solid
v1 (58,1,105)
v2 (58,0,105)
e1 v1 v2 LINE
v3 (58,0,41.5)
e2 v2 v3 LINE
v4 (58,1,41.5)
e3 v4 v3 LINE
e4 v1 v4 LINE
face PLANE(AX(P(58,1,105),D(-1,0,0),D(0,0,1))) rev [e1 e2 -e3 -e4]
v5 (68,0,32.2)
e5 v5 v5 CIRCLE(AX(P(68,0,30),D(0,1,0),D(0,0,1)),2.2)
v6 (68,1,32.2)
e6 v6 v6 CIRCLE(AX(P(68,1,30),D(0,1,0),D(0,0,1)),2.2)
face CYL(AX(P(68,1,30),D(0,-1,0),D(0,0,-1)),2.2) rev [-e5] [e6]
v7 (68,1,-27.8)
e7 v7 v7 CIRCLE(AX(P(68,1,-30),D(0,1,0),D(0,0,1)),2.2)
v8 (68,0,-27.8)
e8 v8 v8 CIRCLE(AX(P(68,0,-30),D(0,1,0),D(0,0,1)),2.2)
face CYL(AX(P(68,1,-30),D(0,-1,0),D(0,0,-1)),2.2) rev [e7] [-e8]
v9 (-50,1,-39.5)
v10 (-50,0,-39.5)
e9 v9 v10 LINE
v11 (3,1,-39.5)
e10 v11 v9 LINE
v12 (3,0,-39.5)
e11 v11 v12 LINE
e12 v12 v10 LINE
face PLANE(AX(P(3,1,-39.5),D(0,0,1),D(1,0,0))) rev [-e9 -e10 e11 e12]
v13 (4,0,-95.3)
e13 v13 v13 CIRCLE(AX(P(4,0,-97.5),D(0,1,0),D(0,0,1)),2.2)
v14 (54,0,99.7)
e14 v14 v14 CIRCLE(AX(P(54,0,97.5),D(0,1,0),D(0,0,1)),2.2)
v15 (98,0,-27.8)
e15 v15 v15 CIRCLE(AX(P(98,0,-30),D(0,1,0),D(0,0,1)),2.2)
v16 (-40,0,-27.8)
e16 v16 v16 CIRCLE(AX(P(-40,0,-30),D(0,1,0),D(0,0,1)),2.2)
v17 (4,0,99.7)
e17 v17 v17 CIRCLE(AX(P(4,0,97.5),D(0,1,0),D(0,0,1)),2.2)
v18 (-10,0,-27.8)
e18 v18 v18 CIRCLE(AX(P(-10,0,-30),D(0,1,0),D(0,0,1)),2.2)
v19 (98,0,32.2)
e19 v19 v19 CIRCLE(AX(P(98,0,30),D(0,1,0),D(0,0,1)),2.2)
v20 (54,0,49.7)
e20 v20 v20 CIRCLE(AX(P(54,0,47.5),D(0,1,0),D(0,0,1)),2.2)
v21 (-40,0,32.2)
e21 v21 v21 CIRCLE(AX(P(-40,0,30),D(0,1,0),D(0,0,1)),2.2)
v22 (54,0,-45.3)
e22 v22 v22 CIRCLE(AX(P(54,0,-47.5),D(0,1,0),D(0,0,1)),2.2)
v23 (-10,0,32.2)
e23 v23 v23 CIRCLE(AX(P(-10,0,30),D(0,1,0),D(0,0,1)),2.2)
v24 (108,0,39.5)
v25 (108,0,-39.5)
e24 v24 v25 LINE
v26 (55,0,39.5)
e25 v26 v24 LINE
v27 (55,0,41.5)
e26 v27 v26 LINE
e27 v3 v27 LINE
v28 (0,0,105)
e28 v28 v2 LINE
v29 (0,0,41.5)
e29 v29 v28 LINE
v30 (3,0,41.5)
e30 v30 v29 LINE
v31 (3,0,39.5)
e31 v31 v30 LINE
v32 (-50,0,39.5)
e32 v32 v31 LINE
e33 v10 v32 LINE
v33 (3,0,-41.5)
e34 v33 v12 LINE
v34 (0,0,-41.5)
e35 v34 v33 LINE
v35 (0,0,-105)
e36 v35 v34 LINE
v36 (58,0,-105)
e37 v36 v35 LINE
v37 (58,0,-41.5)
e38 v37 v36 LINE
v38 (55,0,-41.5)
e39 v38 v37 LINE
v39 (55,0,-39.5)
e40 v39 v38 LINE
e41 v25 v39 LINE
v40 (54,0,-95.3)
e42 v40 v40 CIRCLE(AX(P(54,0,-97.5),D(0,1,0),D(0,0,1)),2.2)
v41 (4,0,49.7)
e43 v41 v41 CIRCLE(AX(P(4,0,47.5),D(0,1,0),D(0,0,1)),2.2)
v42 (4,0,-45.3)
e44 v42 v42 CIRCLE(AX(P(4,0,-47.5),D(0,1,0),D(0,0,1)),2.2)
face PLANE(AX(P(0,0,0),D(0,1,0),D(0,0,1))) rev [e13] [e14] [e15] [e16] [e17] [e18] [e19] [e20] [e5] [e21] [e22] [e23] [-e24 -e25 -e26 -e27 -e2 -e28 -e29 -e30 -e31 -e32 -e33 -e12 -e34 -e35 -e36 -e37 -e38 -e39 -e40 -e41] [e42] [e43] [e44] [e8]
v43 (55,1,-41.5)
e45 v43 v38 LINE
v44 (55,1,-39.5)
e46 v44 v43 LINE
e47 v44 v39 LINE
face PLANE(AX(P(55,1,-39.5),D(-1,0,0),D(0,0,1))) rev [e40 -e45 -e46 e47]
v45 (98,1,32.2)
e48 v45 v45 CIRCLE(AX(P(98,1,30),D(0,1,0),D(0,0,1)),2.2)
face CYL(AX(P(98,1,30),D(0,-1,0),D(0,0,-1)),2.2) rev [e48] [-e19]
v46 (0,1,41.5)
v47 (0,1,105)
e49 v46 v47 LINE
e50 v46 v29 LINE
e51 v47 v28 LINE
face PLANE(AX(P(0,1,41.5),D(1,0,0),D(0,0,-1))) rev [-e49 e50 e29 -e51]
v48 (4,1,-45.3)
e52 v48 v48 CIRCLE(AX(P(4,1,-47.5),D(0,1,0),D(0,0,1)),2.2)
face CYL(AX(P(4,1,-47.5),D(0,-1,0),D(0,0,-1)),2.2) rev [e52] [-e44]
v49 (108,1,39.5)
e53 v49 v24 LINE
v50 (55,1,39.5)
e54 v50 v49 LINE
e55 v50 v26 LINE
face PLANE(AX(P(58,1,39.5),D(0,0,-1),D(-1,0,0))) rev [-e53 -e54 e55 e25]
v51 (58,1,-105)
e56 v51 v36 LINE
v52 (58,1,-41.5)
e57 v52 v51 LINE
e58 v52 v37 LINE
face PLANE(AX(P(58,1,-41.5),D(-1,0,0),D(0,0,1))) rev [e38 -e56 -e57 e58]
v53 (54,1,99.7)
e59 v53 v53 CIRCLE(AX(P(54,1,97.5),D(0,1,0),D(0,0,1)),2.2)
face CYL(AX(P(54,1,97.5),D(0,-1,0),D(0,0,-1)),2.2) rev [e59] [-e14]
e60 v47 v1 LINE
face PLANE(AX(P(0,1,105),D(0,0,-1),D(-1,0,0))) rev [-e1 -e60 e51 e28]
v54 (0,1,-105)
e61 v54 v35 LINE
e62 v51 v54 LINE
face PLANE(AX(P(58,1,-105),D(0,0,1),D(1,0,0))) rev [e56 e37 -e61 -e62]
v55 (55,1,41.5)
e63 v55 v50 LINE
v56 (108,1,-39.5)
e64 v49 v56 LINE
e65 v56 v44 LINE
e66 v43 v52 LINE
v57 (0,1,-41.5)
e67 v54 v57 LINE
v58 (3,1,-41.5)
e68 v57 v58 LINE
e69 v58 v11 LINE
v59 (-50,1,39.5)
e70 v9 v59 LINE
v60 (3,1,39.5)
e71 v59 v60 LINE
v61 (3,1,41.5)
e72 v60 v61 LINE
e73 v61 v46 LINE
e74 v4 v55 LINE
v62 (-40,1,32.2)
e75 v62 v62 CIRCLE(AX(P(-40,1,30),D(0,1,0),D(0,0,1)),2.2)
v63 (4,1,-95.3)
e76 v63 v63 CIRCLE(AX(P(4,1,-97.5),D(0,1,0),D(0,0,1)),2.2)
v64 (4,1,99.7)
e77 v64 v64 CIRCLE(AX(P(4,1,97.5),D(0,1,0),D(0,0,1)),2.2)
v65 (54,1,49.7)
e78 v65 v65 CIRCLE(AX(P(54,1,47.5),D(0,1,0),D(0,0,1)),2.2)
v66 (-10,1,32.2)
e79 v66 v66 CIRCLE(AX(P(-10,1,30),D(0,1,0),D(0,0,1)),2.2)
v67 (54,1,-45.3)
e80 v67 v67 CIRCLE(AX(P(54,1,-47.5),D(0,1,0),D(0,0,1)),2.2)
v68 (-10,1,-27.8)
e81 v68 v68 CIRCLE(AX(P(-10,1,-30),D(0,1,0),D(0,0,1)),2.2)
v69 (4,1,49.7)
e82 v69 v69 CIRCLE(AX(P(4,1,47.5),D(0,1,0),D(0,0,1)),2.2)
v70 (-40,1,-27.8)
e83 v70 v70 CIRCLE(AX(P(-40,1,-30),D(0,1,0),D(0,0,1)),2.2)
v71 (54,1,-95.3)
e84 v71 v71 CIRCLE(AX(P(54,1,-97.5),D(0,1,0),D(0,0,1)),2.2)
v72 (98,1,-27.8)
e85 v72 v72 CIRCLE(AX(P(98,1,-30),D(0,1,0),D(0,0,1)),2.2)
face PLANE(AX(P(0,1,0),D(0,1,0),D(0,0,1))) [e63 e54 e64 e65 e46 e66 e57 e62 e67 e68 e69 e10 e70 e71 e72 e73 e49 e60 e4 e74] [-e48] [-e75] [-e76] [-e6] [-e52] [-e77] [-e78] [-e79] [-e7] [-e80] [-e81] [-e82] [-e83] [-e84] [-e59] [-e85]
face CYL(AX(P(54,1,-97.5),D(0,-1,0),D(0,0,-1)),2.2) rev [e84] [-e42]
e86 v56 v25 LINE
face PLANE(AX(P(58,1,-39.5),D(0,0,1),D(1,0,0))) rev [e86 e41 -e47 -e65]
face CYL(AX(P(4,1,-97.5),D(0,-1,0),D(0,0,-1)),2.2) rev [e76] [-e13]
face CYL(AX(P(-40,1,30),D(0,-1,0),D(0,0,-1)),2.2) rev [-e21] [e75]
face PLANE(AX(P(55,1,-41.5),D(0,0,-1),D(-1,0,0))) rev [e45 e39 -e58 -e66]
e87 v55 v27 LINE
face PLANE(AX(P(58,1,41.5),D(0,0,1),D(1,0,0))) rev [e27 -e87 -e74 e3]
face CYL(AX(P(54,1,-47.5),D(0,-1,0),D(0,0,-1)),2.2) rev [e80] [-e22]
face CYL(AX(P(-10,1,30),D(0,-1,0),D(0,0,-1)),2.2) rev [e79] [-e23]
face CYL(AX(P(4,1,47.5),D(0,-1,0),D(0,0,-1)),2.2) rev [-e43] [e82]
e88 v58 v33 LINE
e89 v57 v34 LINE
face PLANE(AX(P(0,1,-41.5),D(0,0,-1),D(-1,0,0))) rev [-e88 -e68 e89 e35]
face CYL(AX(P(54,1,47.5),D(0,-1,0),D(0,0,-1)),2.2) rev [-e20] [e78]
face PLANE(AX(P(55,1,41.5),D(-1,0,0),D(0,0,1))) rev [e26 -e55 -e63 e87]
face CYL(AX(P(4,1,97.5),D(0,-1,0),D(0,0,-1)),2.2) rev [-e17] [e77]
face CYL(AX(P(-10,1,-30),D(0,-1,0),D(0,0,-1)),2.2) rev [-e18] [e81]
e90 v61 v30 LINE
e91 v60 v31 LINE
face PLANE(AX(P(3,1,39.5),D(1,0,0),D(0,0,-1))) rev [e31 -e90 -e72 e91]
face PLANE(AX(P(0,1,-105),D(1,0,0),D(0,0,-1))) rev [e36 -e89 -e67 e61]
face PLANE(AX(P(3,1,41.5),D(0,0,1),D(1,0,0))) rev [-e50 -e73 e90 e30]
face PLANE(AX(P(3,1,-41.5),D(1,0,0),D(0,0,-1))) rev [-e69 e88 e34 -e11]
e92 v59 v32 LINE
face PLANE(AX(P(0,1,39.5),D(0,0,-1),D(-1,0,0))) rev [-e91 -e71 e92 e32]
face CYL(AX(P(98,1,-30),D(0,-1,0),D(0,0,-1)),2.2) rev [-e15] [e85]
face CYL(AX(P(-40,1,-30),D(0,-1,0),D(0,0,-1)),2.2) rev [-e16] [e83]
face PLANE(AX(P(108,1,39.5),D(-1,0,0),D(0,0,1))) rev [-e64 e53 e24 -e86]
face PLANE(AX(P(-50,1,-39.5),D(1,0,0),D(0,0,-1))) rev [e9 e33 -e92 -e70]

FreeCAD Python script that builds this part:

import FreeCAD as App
import Part
import Sketcher
from FreeCAD import Vector

doc = App.newDocument("Part")
body = doc.addObject("PartDesign::Body", "Body")

sketch1 = body.newObject("Sketcher::SketchObject", "Sketch")
sketch1.AttachmentSupport = (doc.getObject("XZ_Plane"), [""])
sketch1.MapMode = "FlatFace"
sketch1.addGeometry([
    Part.LineSegment(Vector(3, 39.5, 0), Vector(3, 41.5, 0)),
    Part.LineSegment(Vector(3, 41.5, 0), Vector(0, 41.5, 0)),
    Part.LineSegment(Vector(0, 41.5, 0), Vector(0, 105, 0)),
    Part.LineSegment(Vector(0, 105, 0), Vector(58, 105, 0)),
    Part.LineSegment(Vector(58, 105, 0), Vector(58, 41.5, 0)),
    Part.LineSegment(Vector(58, 41.5, 0), Vector(55, 41.5, 0)),
    Part.LineSegment(Vector(55, 41.5, 0), Vector(55, 39.5, 0)),
    Part.LineSegment(Vector(55, 39.5, 0), Vector(108, 39.5, 0)),
    Part.LineSegment(Vector(108, 39.5, 0), Vector(108, -39.5, 0)),
    Part.LineSegment(Vector(108, -39.5, 0), Vector(55, -39.5, 0)),
    Part.LineSegment(Vector(55, -39.5, 0), Vector(55, -41.5, 0)),
    Part.LineSegment(Vector(55, -41.5, 0), Vector(58, -41.5, 0)),
    Part.LineSegment(Vector(58, -41.5, 0), Vector(58, -105, 0)),
    Part.LineSegment(Vector(58, -105, 0), Vector(0, -105, 0)),
    Part.LineSegment(Vector(0, -105, 0), Vector(0, -41.5, 0)),
    Part.LineSegment(Vector(0, -41.5, 0), Vector(3, -41.5, 0)),
    Part.LineSegment(Vector(3, -41.5, 0), Vector(3, -39.5, 0)),
    Part.LineSegment(Vector(3, -39.5, 0), Vector(-50, -39.5, 0)),
    Part.LineSegment(Vector(-50, -39.5, 0), Vector(-50, 39.5, 0)),
    Part.LineSegment(Vector(-50, 39.5, 0), Vector(3, 39.5, 0)),
    Part.Circle(Vector(4, 97.5, 0), Vector(0, 0, 1), 2.2),
    Part.Circle(Vector(-40, 30, 0), Vector(0, 0, 1), 2.2),
    Part.Circle(Vector(-10, 30, 0), Vector(0, 0, 1), 2.2),
    Part.Circle(Vector(4, 47.5, 0), Vector(0, 0, 1), 2.2),
    Part.Circle(Vector(54, 97.5, 0), Vector(0, 0, 1), 2.2),
    Part.Circle(Vector(54, 47.5, 0), Vector(0, 0, 1), 2.2),
    Part.Circle(Vector(68, 30, 0), Vector(0, 0, 1), 2.2),
    Part.Circle(Vector(98, 30, 0), Vector(0, 0, 1), 2.2),
    Part.Circle(Vector(-40, -30, 0), Vector(0, 0, 1), 2.2),
    Part.Circle(Vector(-10, -30, 0), Vector(0, 0, 1), 2.2),
    Part.Circle(Vector(4, -47.5, 0), Vector(0, 0, 1), 2.2),
    Part.Circle(Vector(4, -97.5, 0), Vector(0, 0, 1), 2.2),
    Part.Circle(Vector(54, -47.5, 0), Vector(0, 0, 1), 2.2),
    Part.Circle(Vector(68, -30, 0), Vector(0, 0, 1), 2.2),
    Part.Circle(Vector(98, -30, 0), Vector(0, 0, 1), 2.2),
    Part.Circle(Vector(54, -97.5, 0), Vector(0, 0, 1), 2.2),
], False)
sketch1.addConstraint([
    Sketcher.Constraint("Coincident", 0, 2, 1, 1),
    Sketcher.Constraint("Coincident", 1, 2, 2, 1),
    Sketcher.Constraint("Coincident", 2, 2, 3, 1),
    Sketcher.Constraint("Coincident", 3, 2, 4, 1),
    Sketcher.Constraint("Coincident", 4, 2, 5, 1),
    Sketcher.Constraint("Coincident", 5, 2, 6, 1),
    Sketcher.Constraint("Coincident", 6, 2, 7, 1),
    Sketcher.Constraint("Coincident", 7, 2, 8, 1),
    Sketcher.Constraint("Coincident", 8, 2, 9, 1),
    Sketcher.Constraint("Coincident", 9, 2, 10, 1),
    Sketcher.Constraint("Coincident", 10, 2, 11, 1),
    Sketcher.Constraint("Coincident", 11, 2, 12, 1),
    Sketcher.Constraint("Coincident", 12, 2, 13, 1),
    Sketcher.Constraint("Coincident", 13, 2, 14, 1),
    Sketcher.Constraint("Coincident", 14, 2, 15, 1),
    Sketcher.Constraint("Coincident", 15, 2, 16, 1),
    Sketcher.Constraint("Coincident", 16, 2, 17, 1),
    Sketcher.Constraint("Coincident", 17, 2, 18, 1),
    Sketcher.Constraint("Coincident", 18, 2, 19, 1),
    Sketcher.Constraint("Coincident", 19, 2, 0, 1),
    Sketcher.Constraint("Vertical", 0),
    Sketcher.Constraint("Horizontal", 1),
    Sketcher.Constraint("Vertical", 2),
    Sketcher.Constraint("Horizontal", 3),
    Sketcher.Constraint("Vertical", 4),
    Sketcher.Constraint("Horizontal", 5),
    Sketcher.Constraint("Vertical", 6),
    Sketcher.Constraint("Horizontal", 7),
    Sketcher.Constraint("Vertical", 8),
    Sketcher.Constraint("Horizontal", 9),
    Sketcher.Constraint("Vertical", 10),
    Sketcher.Constraint("Horizontal", 11),
    Sketcher.Constraint("Vertical", 12),
    Sketcher.Constraint("Horizontal", 13),
    Sketcher.Constraint("Vertical", 14),
    Sketcher.Constraint("Horizontal", 15),
    Sketcher.Constraint("Vertical", 16),
    Sketcher.Constraint("Horizontal", 17),
    Sketcher.Constraint("Vertical", 18),
    Sketcher.Constraint("Horizontal", 19),
    Sketcher.Constraint("Equal", 20, 21),
    Sketcher.Constraint("Equal", 21, 22),
    Sketcher.Constraint("Equal", 22, 23),
    Sketcher.Constraint("Equal", 23, 24),
    Sketcher.Constraint("Equal", 24, 25),
    Sketcher.Constraint("Equal", 25, 26),
    Sketcher.Constraint("Equal", 26, 27),
    Sketcher.Constraint("Equal", 27, 28),
    Sketcher.Constraint("Equal", 28, 29),
    Sketcher.Constraint("Equal", 29, 30),
    Sketcher.Constraint("Equal", 30, 31),
    Sketcher.Constraint("Equal", 31, 32),
    Sketcher.Constraint("Equal", 32, 33),
    Sketcher.Constraint("Equal", 33, 34),
    Sketcher.Constraint("Equal", 34, 35),
    Sketcher.Constraint("Symmetric", 2, 2, 13, 2, -1, 1),
    Sketcher.Constraint("Symmetric", 21, 3, 28, 3, -1),
    Sketcher.Constraint("Symmetric", 22, 3, 29, 3, -1),
    Sketcher.Constraint("Symmetric", 23, 3, 30, 3, -1),
    Sketcher.Constraint("Symmetric", 20, 3, 31, 3, -1),
    Sketcher.Constraint("Symmetric", 25, 3, 32, 3, -1),
    Sketcher.Constraint("Symmetric", 26, 3, 33, 3, -1),
    Sketcher.Constraint("Symmetric", 27, 3, 34, 3, -1),
    Sketcher.Constraint("Symmetric", 24, 3, 35, 3, -1),
    Sketcher.Constraint("Symmetric", 6, 2, 9, 2, -1),
    Sketcher.Constraint("Symmetric", 4, 2, 11, 2, -1),
    Sketcher.Constraint("Symmetric", 1, 2, 14, 2, -1),
    Sketcher.Constraint("Symmetric", 16, 2, 19, 2, -1),
    Sketcher.Constraint("Horizontal", 21, 3, 22, 3),
    Sketcher.Constraint("Horizontal", 20, 3, 24, 3),
    Sketcher.Constraint("Horizontal", 23, 3, 25, 3),
    Sketcher.Constraint("Horizontal", 22, 3, 26, 3),
    Sketcher.Constraint("Horizontal", 26, 3, 27, 3),
    Sketcher.Constraint("Horizontal", 1, 2, 4, 2),
    Sketcher.Constraint("Horizontal", 9, 2, 16, 2),
    Sketcher.Constraint("Vertical", 20, 3, 23, 3),
    Sketcher.Constraint("Vertical", 24, 3, 25, 3),
    Sketcher.Constraint("Equal", 1, 5),
    Sketcher.Constraint("Equal", 9, 17),
    Sketcher.Constraint("Diameter", 20, 4.4),
    Sketcher.Constraint("DistanceX", 1, 2, 1, 1, 3.0),
    Sketcher.Constraint("DistanceX", 3, 1, 3, 2, 58.0),
    Sketcher.Constraint("DistanceX", 7, 1, 7, 2, 53.0),
    Sketcher.Constraint("DistanceY", 0, 1, 0, 2, 2.0),
    Sketcher.Constraint("DistanceY", 8, 2, 8, 1, 79.0),
    Sketcher.Constraint("DistanceY", 2, 1, 2, 2, 63.5),
    Sketcher.Constraint("DistanceX", -1, 1, 20, 3, 4.0),
    Sketcher.Constraint("DistanceX", 21, 3, -1, 1, 40.0),
    Sketcher.Constraint("DistanceY", -1, 1, 21, 3, 30.0),
    Sketcher.Constraint("DistanceX", 22, 3, -1, 1, 10.0),
    Sketcher.Constraint("DistanceX", -1, 1, 24, 3, 54.0),
    Sketcher.Constraint("DistanceX", -1, 1, 26, 3, 68.0),
    Sketcher.Constraint("DistanceX", -1, 1, 27, 3, 98.0),
    Sketcher.Constraint("DistanceY", 23, 3, 20, 3, 50.0),
    Sketcher.Constraint("DistanceY", 30, 3, 23, 3, 95.0),
])
pad1 = body.newObject("PartDesign::Pad", "Pad")
pad1.Profile = sketch1
pad1.Length = 1
pad1.Reversed = True

doc.recompute()
